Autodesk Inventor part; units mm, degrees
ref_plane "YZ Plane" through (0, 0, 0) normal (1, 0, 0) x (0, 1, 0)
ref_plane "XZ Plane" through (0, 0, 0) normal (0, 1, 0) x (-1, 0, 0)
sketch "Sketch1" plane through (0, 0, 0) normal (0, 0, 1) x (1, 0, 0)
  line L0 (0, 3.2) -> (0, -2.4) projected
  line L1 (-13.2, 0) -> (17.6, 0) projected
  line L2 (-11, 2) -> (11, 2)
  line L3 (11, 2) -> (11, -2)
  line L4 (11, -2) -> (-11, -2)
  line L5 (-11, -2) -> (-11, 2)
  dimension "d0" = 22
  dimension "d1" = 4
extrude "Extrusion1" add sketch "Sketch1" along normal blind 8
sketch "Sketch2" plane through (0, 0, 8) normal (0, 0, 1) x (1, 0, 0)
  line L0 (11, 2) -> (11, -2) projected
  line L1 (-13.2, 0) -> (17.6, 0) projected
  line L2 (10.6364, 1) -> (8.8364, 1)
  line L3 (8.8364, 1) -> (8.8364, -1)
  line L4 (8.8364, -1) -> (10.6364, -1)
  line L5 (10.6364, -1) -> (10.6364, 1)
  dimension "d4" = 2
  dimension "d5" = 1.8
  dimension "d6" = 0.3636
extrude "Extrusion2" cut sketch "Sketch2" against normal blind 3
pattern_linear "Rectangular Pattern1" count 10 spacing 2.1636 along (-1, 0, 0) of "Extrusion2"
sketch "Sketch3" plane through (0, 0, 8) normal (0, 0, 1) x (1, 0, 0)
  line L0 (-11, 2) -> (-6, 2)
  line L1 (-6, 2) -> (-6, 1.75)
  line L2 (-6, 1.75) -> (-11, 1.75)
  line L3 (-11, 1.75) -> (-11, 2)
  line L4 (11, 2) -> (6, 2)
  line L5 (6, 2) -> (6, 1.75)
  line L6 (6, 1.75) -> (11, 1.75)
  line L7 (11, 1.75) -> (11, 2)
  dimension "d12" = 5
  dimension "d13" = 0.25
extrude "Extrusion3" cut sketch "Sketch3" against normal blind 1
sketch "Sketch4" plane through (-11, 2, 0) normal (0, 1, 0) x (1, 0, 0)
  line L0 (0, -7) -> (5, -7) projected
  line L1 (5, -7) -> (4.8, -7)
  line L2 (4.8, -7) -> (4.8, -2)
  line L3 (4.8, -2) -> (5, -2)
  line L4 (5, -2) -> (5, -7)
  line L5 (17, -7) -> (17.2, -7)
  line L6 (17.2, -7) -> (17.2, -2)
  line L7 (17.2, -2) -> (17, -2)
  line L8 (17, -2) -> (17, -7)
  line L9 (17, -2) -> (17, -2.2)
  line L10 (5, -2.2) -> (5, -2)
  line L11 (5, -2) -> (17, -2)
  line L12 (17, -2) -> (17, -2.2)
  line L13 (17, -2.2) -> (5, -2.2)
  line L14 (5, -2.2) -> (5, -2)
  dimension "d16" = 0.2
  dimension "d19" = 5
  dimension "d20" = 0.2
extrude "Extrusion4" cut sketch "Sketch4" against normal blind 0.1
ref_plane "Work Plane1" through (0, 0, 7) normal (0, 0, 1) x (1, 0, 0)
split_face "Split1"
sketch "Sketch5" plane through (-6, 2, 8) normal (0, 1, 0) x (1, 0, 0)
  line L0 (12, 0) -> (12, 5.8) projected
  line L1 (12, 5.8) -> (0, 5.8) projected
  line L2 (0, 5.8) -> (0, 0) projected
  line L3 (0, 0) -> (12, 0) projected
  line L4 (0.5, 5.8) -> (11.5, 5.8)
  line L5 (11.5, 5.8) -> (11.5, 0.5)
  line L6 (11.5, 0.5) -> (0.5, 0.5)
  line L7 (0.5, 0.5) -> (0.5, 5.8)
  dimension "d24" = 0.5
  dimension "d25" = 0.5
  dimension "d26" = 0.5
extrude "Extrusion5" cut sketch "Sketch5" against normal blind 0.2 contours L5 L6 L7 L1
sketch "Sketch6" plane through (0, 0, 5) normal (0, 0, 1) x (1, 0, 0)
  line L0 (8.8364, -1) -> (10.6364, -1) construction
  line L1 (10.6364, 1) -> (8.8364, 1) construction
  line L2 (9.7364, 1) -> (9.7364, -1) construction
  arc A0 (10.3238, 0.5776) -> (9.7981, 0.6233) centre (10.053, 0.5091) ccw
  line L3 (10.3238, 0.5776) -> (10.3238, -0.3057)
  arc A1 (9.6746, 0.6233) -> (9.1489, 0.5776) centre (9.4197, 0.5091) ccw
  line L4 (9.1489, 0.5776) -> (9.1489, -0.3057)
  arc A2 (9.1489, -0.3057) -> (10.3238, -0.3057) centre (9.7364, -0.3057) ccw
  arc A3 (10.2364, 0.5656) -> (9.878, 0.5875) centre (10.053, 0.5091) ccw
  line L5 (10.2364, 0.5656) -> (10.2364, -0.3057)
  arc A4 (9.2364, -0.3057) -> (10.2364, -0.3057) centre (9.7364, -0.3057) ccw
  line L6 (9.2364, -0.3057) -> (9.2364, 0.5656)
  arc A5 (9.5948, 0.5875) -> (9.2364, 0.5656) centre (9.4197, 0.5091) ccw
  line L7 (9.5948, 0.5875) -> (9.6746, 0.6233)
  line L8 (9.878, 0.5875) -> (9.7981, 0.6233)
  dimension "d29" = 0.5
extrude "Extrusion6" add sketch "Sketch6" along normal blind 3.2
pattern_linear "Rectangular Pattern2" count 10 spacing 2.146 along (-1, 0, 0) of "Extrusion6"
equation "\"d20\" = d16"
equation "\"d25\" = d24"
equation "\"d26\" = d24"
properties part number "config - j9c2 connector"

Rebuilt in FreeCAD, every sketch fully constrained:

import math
import FreeCAD as App
import Part
import Sketcher

V = App.Vector
Q = App.Units.Quantity


def add_polygon(sketch, points):
    """Adds a closed chain of lines whose ends are joined by coincident constraints."""
    first, n = sketch.GeometryCount, len(points)
    for a, b in zip(points, points[1:] + points[:1]):
        sketch.addGeometry(Part.LineSegment(App.Vector(*a, 0), App.Vector(*b, 0)), False)
    for i in range(n):
        sketch.addConstraint(Sketcher.Constraint("Coincident", first + i, 2, first + (i + 1) % n, 1))

doc = App.newDocument("Part")
body = doc.addObject("PartDesign::Body", "Body")

sketch1 = body.newObject("Sketcher::SketchObject", "Sketch")
sketch1.AttachmentSupport = (doc.getObject("XY_Plane"), [""])
sketch1.MapMode = "FlatFace"
add_polygon(sketch1, [(11, 2), (-11, 2), (-11, -2), (11, -2)])
sketch1.addConstraint([
    Sketcher.Constraint("Horizontal", 0),
    Sketcher.Constraint("Vertical", 1),
    Sketcher.Constraint("Horizontal", 2),
    Sketcher.Constraint("Vertical", 3),
    Sketcher.Constraint("Symmetric", 0, 2, 2, 2, -1, 1),
    Sketcher.Constraint("DistanceX", 0, 2, 0, 1, Q("22 mm")),
    Sketcher.Constraint("DistanceY", 1, 2, 1, 1, Q("4 mm")),
])
pad1 = body.newObject("PartDesign::Pad", "Pad")
pad1.Profile = sketch1
pad1.Length = 8

sketch2 = body.newObject("Sketcher::SketchObject", "Sketch001")
sketch2.AttachmentSupport = (doc.getObject("XY_Plane"), [""])
sketch2.MapMode = "FlatFace"
sketch2.AttachmentOffset = App.Placement(V(0, 0, 8), App.Rotation())
add_polygon(sketch2, [(8.8, 1), (8.8, -1), (10.6, -1), (10.6, 1)])
sketch2.addConstraint([
    Sketcher.Constraint("Vertical", 0),
    Sketcher.Constraint("Horizontal", 1),
    Sketcher.Constraint("Vertical", 2),
    Sketcher.Constraint("Horizontal", 3),
    Sketcher.Constraint("DistanceY", 0, 2, 0, 1, Q("2 mm")),
    Sketcher.Constraint("DistanceX", 1, 1, 1, 2, Q("1.8 mm")),
    Sketcher.Constraint("DistanceY", 0, 2, -1, 1, Q("1 mm")),
    Sketcher.Constraint("DistanceX", -1, 1, 0, 2, Q("8.8364 mm")),
])
pocket1 = body.newObject("PartDesign::Pocket", "Pocket")
pocket1.Profile = sketch2
pocket1.Length = 3
doc.recompute()

linearpattern = body.newObject("PartDesign::LinearPattern", "LinearPattern")
linearpattern.Originals = [pocket1]
linearpattern.Direction = (doc.getObject("X_Axis"), [""])
linearpattern.Mode = "offset"
linearpattern.Offset = 2.1636
linearpattern.Occurrences = 10
linearpattern.Reversed = True
body.Tip = linearpattern

sketch3 = body.newObject("Sketcher::SketchObject", "Sketch002")
sketch3.AttachmentSupport = (doc.getObject("XY_Plane"), [""])
sketch3.MapMode = "FlatFace"
sketch3.AttachmentOffset = App.Placement(V(0, 0, 8), App.Rotation())
add_polygon(sketch3, [(-6, 2), (-11, 2), (-11, 1.75), (-6, 1.75)])
add_polygon(sketch3, [(11, 1.75), (11, 2), (6, 2), (6, 1.75)])
sketch3.addConstraint([
    Sketcher.Constraint("Horizontal", 0),
    Sketcher.Constraint("Vertical", 1),
    Sketcher.Constraint("Horizontal", 2),
    Sketcher.Constraint("Vertical", 3),
    Sketcher.Constraint("Vertical", 4),
    Sketcher.Constraint("Horizontal", 5),
    Sketcher.Constraint("Vertical", 6),
    Sketcher.Constraint("Horizontal", 7),
    Sketcher.Constraint("Symmetric", 0, 2, 4, 2, -2),
    Sketcher.Constraint("Symmetric", 2, 2, 6, 2, -2),
    Sketcher.Constraint("DistanceX", 0, 2, 0, 1, Q("5 mm")),
    Sketcher.Constraint("DistanceY", 1, 2, 1, 1, Q("0.25 mm")),
    Sketcher.Constraint("DistanceX", 0, 2, -1, 1, Q("11 mm")),
    Sketcher.Constraint("DistanceY", -1, 1, 0, 2, Q("2 mm")),
])
pocket2 = body.newObject("PartDesign::Pocket", "Pocket001")
pocket2.Profile = sketch3
pocket2.Length = 1

sketch4 = body.newObject("Sketcher::SketchObject", "Sketch003")
sketch4.AttachmentSupport = (doc.getObject("XZ_Plane"), [""])
sketch4.MapMode = "FlatFace"
sketch4.AttachmentOffset = App.Placement(V(0, 0, -2), App.Rotation())
add_polygon(sketch4, [(-6.2, 2), (-6.2, 7), (-6, 7), (-6, 2.2), (6, 2.2), (6, 7), (6.2, 7), (6.2, 2)])
sketch4.addConstraint([
    Sketcher.Constraint("Vertical", 0),
    Sketcher.Constraint("Horizontal", 1),
    Sketcher.Constraint("Vertical", 2),
    Sketcher.Constraint("Horizontal", 3),
    Sketcher.Constraint("Vertical", 4),
    Sketcher.Constraint("Horizontal", 5),
    Sketcher.Constraint("Vertical", 6),
    Sketcher.Constraint("Horizontal", 7),
    Sketcher.Constraint("Symmetric", 1, 2, 4, 2, -2),
    Sketcher.Constraint("Equal", 1, 5),
    Sketcher.Constraint("DistanceY", 0, 1, 0, 2, Q("5 mm")),
    Sketcher.Constraint("DistanceX", 1, 1, 1, 2, Q("0.2 mm")),
    Sketcher.Constraint("DistanceY", 6, 2, 3, 2, Q("0.2 mm")),
    Sketcher.Constraint("DistanceX", 3, 1, 3, 2, Q("12 mm")),
    Sketcher.Constraint("DistanceY", -1, 1, 0, 2, Q("7 mm")),
])
pocket3 = body.newObject("PartDesign::Pocket", "Pocket002")
pocket3.Profile = sketch4
pocket3.Length = 0.1
pocket3.Reversed = True

sketch5 = body.newObject("Sketcher::SketchObject", "Sketch004")
sketch5.AttachmentSupport = (doc.getObject("XZ_Plane"), [""])
sketch5.MapMode = "FlatFace"
sketch5.AttachmentOffset = App.Placement(V(0, 0, -2), App.Rotation())
add_polygon(sketch5, [(6, 8), (6, 2), (-6, 2), (-6, 8)])
sketch5.addConstraint([
    Sketcher.Constraint("Vertical", 0),
    Sketcher.Constraint("Horizontal", 1),
    Sketcher.Constraint("Vertical", 2),
    Sketcher.Constraint("Horizontal", 3),
    Sketcher.Constraint("DistanceX", 1, 2, 1, 1, Q("11 mm")),
    Sketcher.Constraint("DistanceY", 0, 2, 0, 1, Q("5.3 mm")),
    Sketcher.Constraint("DistanceX", -1, 1, 0, 2, Q("5.5 mm")),
    Sketcher.Constraint("DistanceY", -1, 1, 0, 2, Q("2.2 mm")),
])
pocket4 = body.newObject("PartDesign::Pocket", "Pocket003")
pocket4.Profile = sketch5
pocket4.Length = 0.2
pocket4.Reversed = True

sketch6 = body.newObject("Sketcher::SketchObject", "Sketch005")
sketch6.AttachmentSupport = (doc.getObject("XY_Plane"), [""])
sketch6.MapMode = "FlatFace"
sketch6.AttachmentOffset = App.Placement(V(0, 0, 5), App.Rotation())
sketch6.addGeometry([
    Part.LineSegment(V(10.3238, -0.3057, 0), V(10.3238, 0.5776, 0)),
    Part.ArcOfCircle(Part.Circle(V(10.053, 0.5091, 0), V(0, 0, 1), 0.279329), math.radians(14.195439), math.radians(155.866722)),
    Part.LineSegment(V(9.7981, 0.6233, 0), V(9.878, 0.5875, 0)),
    Part.ArcOfCircle(Part.Circle(V(10.053, 0.5091, 0), V(0, 0, 1), 0.191906), math.radians(17.122485), math.radians(155.86762)),
    Part.LineSegment(V(10.2364, 0.5656, 0), V(10.2364, -0.3057, 0)),
    Part.ArcOfCircle(Part.Circle(V(9.7364, -0.3057, 0), V(0, 0, 1), 0.5), math.radians(180), math.radians(360)),
    Part.LineSegment(V(9.2364, -0.3057, 0), V(9.2364, 0.5656, 0)),
    Part.ArcOfCircle(Part.Circle(V(9.4197, 0.5091, 0), V(0, 0, 1), 0.19185), math.radians(24.120169), math.radians(162.868721)),
    Part.LineSegment(V(9.5948, 0.5875, 0), V(9.6746, 0.6233, 0)),
    Part.ArcOfCircle(Part.Circle(V(9.4197, 0.5091, 0), V(0, 0, 1), 0.279313), math.radians(24.133278), math.radians(165.804561)),
    Part.LineSegment(V(9.1489, 0.5776, 0), V(9.1489, -0.3057, 0)),
    Part.ArcOfCircle(Part.Circle(V(9.7364, -0.3057, 0), V(0, 0, 1), 0.5875), math.radians(180), math.radians(360)),
], False)
sketch6.addConstraint([
    Sketcher.Constraint("Coincident", 0, 2, 1, 1),
    Sketcher.Constraint("Coincident", 1, 2, 2, 1),
    Sketcher.Constraint("Coincident", 2, 2, 3, 2),
    Sketcher.Constraint("Coincident", 3, 1, 4, 1),
    Sketcher.Constraint("Coincident", 4, 2, 5, 2),
    Sketcher.Constraint("Coincident", 5, 1, 6, 1),
    Sketcher.Constraint("Coincident", 6, 2, 7, 2),
    Sketcher.Constraint("Coincident", 7, 1, 8, 1),
    Sketcher.Constraint("Coincident", 8, 2, 9, 1),
    Sketcher.Constraint("Coincident", 9, 2, 10, 1),
    Sketcher.Constraint("Coincident", 10, 2, 11, 1),
    Sketcher.Constraint("Coincident", 11, 2, 0, 1),
    Sketcher.Constraint("Vertical", 0),
    Sketcher.Constraint("Vertical", 4),
    Sketcher.Constraint("Vertical", 6),
    Sketcher.Constraint("Vertical", 10),
    Sketcher.Constraint("Coincident", 3, 3, 1, 3),
    Sketcher.Constraint("Coincident", 9, 3, 7, 3),
    Sketcher.Constraint("Coincident", 11, 3, 5, 3),
    Sketcher.Constraint("Radius", 5, Q("0.5 mm")),
    Sketcher.Constraint("Radius", 3, Q("0.192 mm")),
    Sketcher.Constraint("Radius", 1, Q("0.2793 mm")),
    Sketcher.Constraint("Radius", 7, Q("0.1919 mm")),
    Sketcher.Constraint("Radius", 9, Q("0.2793 mm")),
    Sketcher.Constraint("Radius", 11, Q("0.5875 mm")),
    Sketcher.Constraint("DistanceX", 1, 2, 2, 2, Q("0.08 mm")),
    Sketcher.Constraint("DistanceY", 0, 2, 2, 2, Q("0.01 mm")),
    Sketcher.Constraint("DistanceY", 9, 2, 7, 1, Q("0.01 mm")),
    Sketcher.Constraint("DistanceY", 0, 1, 0, 2, Q("0.8833 mm")),
    Sketcher.Constraint("DistanceY", 4, 2, 4, 1, Q("0.8713 mm")),
    Sketcher.Constraint("DistanceY", 6, 1, 6, 2, Q("0.8713 mm")),
    Sketcher.Constraint("DistanceY", 10, 2, 10, 1, Q("0.8833 mm")),
    Sketcher.Constraint("DistanceX", -1, 1, 1, 3, Q("10.053 mm")),
    Sketcher.Constraint("DistanceY", -1, 1, 1, 3, Q("0.509 mm")),
    Sketcher.Constraint("DistanceY", -1, 1, 7, 3, Q("0.509 mm")),
    Sketcher.Constraint("DistanceX", -1, 1, 1, 2, Q("9.798 mm")),
    Sketcher.Constraint("DistanceX", 7, 3, 0, 2, Q("0.904 mm")),
    Sketcher.Constraint("DistanceX", 7, 3, 8, 2, Q("0.255 mm")),
    Sketcher.Constraint("DistanceY", 5, 3, -1, 1, Q("0.3057 mm")),
])
pad2 = body.newObject("PartDesign::Pad", "Pad001")
pad2.Profile = sketch6
pad2.Length = 3.2
doc.recompute()

linearpattern2 = body.newObject("PartDesign::LinearPattern", "LinearPattern001")
linearpattern2.Originals = [pad2]
linearpattern2.Direction = (doc.getObject("X_Axis"), [""])
linearpattern2.Mode = "offset"
linearpattern2.Offset = 2.146
linearpattern2.Occurrences = 10
linearpattern2.Reversed = True
body.Tip = linearpattern2

doc.recompute()
